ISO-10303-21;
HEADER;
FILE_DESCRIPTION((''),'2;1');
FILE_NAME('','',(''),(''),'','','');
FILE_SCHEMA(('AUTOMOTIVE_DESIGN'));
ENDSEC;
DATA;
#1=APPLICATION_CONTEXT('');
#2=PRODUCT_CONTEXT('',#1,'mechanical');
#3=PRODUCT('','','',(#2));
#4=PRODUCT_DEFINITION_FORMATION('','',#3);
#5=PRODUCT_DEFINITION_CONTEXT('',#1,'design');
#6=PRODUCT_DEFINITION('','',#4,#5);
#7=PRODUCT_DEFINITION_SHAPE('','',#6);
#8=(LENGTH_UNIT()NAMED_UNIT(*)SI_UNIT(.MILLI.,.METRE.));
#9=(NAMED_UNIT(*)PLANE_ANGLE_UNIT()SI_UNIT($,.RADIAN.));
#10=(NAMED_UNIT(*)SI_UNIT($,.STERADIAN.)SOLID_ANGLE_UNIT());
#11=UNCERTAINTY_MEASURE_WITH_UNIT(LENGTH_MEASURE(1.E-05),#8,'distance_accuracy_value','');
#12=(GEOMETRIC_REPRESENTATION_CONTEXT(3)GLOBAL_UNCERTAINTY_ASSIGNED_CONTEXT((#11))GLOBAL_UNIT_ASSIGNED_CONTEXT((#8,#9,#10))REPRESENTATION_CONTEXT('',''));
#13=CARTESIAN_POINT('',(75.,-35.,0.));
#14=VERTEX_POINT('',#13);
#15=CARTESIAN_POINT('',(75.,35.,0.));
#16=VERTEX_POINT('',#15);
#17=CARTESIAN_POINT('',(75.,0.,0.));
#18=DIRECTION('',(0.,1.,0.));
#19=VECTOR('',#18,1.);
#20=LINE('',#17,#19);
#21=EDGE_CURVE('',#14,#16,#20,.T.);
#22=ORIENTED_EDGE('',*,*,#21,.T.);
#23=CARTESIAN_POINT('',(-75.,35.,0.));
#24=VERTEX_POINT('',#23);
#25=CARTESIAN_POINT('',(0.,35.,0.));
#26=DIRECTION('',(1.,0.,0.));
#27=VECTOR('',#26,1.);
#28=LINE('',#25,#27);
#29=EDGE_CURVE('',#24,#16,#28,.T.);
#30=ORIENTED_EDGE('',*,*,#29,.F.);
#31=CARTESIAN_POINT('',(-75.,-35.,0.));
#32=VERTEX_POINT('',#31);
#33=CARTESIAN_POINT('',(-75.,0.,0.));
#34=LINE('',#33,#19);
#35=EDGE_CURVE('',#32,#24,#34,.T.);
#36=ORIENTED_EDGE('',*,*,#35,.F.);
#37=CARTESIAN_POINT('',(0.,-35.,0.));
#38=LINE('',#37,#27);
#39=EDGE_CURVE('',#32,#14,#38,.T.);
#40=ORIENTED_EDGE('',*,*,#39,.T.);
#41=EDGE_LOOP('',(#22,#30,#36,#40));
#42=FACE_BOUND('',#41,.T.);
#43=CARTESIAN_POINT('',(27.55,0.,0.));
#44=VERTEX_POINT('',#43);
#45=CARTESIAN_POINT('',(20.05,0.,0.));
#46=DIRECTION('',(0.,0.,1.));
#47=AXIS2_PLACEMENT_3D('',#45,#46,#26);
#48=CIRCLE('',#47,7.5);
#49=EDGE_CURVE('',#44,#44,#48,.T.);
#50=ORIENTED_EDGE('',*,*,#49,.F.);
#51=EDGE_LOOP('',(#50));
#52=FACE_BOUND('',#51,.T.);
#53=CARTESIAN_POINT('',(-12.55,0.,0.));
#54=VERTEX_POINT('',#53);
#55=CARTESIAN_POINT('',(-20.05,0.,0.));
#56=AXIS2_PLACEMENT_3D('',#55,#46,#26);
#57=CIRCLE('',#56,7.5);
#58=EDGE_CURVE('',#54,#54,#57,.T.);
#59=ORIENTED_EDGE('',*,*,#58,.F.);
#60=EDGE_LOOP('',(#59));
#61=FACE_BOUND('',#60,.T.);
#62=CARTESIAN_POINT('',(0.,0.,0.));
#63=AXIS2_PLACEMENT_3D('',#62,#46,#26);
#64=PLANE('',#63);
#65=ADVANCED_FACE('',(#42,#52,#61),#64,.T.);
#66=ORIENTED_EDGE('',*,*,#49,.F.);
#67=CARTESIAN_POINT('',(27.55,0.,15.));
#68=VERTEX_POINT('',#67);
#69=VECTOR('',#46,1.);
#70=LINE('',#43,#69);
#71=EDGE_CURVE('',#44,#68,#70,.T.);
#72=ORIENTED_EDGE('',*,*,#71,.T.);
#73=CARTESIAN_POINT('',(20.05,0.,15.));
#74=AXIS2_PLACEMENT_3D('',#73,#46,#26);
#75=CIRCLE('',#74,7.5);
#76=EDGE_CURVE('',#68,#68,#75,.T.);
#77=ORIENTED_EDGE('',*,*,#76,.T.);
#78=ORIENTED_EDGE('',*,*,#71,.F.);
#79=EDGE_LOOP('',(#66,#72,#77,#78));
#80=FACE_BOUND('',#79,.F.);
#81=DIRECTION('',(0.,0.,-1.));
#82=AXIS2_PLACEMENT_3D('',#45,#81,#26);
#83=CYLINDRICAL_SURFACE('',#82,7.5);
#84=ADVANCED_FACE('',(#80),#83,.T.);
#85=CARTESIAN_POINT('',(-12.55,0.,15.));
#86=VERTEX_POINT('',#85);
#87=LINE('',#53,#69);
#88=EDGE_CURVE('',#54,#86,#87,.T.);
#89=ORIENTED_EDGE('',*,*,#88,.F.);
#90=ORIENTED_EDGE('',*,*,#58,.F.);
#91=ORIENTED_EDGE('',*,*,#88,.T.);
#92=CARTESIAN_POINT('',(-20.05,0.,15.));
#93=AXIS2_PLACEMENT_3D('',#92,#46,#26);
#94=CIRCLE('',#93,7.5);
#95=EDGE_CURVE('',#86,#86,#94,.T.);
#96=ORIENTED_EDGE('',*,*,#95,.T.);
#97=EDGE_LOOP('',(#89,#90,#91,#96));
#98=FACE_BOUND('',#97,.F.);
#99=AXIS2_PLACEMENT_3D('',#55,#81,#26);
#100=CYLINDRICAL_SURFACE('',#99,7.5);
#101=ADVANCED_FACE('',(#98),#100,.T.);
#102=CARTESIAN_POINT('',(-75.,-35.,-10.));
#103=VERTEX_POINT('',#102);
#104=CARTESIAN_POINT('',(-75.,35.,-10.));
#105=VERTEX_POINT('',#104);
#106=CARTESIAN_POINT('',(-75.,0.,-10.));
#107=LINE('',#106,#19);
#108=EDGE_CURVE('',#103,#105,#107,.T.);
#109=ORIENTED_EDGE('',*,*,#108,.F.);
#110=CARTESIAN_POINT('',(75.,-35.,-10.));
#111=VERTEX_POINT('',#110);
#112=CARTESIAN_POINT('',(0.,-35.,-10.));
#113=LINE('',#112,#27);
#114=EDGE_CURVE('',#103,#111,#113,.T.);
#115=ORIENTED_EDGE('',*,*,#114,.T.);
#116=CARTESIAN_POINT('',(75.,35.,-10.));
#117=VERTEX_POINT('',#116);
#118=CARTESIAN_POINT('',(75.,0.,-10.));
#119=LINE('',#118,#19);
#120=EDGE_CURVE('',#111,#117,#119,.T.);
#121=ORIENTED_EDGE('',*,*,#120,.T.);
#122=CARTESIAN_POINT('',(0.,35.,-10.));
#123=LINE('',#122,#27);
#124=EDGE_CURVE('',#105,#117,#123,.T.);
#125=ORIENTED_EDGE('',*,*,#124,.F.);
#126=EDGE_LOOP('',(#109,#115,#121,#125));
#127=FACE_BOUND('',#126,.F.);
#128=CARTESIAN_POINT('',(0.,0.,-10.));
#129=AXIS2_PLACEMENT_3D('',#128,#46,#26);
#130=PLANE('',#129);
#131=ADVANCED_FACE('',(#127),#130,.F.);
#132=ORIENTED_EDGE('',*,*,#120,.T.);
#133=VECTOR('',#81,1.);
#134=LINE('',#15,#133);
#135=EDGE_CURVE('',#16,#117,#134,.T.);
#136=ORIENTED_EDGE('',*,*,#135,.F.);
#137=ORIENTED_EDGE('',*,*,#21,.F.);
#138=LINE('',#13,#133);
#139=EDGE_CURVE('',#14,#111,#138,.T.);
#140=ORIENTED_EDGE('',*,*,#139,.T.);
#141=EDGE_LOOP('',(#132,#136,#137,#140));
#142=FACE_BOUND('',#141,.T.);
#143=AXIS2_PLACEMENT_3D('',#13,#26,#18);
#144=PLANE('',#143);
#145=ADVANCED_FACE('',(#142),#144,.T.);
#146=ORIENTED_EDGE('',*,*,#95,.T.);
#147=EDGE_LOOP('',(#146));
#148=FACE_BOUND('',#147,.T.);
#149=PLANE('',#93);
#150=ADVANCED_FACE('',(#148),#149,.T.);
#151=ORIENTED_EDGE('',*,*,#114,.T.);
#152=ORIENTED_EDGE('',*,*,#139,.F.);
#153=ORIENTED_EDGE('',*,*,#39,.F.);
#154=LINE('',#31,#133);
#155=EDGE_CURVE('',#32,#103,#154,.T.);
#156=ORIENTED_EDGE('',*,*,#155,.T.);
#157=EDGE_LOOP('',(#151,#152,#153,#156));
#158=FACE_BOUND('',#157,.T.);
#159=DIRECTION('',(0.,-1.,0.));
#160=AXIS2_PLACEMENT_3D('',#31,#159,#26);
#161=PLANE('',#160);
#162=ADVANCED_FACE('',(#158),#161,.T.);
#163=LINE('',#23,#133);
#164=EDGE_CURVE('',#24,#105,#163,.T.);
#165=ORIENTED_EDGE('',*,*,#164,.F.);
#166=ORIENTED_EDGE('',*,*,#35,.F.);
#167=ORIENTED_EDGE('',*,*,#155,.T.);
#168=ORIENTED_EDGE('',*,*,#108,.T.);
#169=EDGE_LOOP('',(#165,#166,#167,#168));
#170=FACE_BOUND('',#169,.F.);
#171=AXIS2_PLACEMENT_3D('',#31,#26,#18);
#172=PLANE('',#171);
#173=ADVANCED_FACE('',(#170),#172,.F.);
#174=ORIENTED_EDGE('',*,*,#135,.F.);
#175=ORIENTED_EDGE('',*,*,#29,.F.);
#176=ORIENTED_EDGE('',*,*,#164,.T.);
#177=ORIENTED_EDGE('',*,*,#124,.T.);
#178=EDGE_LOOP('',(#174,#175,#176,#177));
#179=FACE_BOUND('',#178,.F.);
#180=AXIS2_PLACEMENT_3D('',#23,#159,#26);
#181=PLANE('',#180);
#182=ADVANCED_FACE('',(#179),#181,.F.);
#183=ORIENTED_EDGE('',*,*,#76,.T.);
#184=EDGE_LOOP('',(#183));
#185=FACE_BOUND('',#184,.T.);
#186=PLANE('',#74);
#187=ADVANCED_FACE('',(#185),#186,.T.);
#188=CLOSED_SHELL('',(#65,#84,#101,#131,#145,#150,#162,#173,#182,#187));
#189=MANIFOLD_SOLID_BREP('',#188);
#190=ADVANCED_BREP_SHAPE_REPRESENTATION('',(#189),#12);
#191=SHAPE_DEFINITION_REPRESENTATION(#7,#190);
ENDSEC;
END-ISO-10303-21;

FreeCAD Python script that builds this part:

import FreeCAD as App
import Part
import Sketcher

V = App.Vector
Q = App.Units.Quantity

doc = App.newDocument("Part")
body = doc.addObject("PartDesign::Body", "Body")

sketch1 = doc.addObject("Sketcher::SketchObject", "Sketch")
body.addObject(sketch1)
sketch1.AttachmentSupport = (doc.XY_Plane, [""])
sketch1.MapMode = "FlatFace"
sketch1.addGeometry([
    Part.LineSegment(V(-75, 35, 0), V(-75, -35, 0)),
    Part.LineSegment(V(-75, -35, 0), V(75, -35, 0)),
    Part.LineSegment(V(75, -35, 0), V(75, 35, 0)),
    Part.LineSegment(V(75, 35, 0), V(-75, 35, 0)),
], False)
sketch1.addConstraint([
    Sketcher.Constraint("Coincident", 0, 2, 1, 1),
    Sketcher.Constraint("Coincident", 1, 2, 2, 1),
    Sketcher.Constraint("Coincident", 2, 2, 3, 1),
    Sketcher.Constraint("Coincident", 3, 2, 0, 1),
    Sketcher.Constraint("Vertical", 0),
    Sketcher.Constraint("Horizontal", 1),
    Sketcher.Constraint("Vertical", 2),
    Sketcher.Constraint("Horizontal", 3),
    Sketcher.Constraint("Symmetric", 0, 2, 2, 2, -1, 1),
    Sketcher.Constraint("DistanceX", 1, 1, 1, 2, Q("150 mm")),
    Sketcher.Constraint("DistanceY", 0, 2, 0, 1, Q("70 mm")),
])
pad1 = doc.addObject("PartDesign::Pad", "Pad")
body.addObject(pad1)
pad1.Profile = sketch1
pad1.Length = 10
pad1.Reversed = True

sketch2 = doc.addObject("Sketcher::SketchObject", "Sketch001")
body.addObject(sketch2)
sketch2.AttachmentSupport = (doc.XY_Plane, [""])
sketch2.MapMode = "FlatFace"
sketch2.addGeometry([
    Part.Circle(V(-20.05, 0, 0), V(0, 0, 1), 7.5),
    Part.Circle(V(20.05, 0, 0), V(0, 0, 1), 7.5),
], False)
sketch2.addConstraint([
    Sketcher.Constraint("Equal", 0, 1),
    Sketcher.Constraint("Symmetric", 0, 3, 1, 3, -1, 1),
    Sketcher.Constraint("PointOnObject", 0, 3, -1),
    Sketcher.Constraint("Diameter", 0, Q("15 mm")),
    Sketcher.Constraint("DistanceX", 0, 3, 1, 3, Q("40.1 mm")),
])
pad2 = doc.addObject("PartDesign::Pad", "Pad001")
body.addObject(pad2)
pad2.Profile = sketch2
pad2.Length = 15

doc.recompute()
